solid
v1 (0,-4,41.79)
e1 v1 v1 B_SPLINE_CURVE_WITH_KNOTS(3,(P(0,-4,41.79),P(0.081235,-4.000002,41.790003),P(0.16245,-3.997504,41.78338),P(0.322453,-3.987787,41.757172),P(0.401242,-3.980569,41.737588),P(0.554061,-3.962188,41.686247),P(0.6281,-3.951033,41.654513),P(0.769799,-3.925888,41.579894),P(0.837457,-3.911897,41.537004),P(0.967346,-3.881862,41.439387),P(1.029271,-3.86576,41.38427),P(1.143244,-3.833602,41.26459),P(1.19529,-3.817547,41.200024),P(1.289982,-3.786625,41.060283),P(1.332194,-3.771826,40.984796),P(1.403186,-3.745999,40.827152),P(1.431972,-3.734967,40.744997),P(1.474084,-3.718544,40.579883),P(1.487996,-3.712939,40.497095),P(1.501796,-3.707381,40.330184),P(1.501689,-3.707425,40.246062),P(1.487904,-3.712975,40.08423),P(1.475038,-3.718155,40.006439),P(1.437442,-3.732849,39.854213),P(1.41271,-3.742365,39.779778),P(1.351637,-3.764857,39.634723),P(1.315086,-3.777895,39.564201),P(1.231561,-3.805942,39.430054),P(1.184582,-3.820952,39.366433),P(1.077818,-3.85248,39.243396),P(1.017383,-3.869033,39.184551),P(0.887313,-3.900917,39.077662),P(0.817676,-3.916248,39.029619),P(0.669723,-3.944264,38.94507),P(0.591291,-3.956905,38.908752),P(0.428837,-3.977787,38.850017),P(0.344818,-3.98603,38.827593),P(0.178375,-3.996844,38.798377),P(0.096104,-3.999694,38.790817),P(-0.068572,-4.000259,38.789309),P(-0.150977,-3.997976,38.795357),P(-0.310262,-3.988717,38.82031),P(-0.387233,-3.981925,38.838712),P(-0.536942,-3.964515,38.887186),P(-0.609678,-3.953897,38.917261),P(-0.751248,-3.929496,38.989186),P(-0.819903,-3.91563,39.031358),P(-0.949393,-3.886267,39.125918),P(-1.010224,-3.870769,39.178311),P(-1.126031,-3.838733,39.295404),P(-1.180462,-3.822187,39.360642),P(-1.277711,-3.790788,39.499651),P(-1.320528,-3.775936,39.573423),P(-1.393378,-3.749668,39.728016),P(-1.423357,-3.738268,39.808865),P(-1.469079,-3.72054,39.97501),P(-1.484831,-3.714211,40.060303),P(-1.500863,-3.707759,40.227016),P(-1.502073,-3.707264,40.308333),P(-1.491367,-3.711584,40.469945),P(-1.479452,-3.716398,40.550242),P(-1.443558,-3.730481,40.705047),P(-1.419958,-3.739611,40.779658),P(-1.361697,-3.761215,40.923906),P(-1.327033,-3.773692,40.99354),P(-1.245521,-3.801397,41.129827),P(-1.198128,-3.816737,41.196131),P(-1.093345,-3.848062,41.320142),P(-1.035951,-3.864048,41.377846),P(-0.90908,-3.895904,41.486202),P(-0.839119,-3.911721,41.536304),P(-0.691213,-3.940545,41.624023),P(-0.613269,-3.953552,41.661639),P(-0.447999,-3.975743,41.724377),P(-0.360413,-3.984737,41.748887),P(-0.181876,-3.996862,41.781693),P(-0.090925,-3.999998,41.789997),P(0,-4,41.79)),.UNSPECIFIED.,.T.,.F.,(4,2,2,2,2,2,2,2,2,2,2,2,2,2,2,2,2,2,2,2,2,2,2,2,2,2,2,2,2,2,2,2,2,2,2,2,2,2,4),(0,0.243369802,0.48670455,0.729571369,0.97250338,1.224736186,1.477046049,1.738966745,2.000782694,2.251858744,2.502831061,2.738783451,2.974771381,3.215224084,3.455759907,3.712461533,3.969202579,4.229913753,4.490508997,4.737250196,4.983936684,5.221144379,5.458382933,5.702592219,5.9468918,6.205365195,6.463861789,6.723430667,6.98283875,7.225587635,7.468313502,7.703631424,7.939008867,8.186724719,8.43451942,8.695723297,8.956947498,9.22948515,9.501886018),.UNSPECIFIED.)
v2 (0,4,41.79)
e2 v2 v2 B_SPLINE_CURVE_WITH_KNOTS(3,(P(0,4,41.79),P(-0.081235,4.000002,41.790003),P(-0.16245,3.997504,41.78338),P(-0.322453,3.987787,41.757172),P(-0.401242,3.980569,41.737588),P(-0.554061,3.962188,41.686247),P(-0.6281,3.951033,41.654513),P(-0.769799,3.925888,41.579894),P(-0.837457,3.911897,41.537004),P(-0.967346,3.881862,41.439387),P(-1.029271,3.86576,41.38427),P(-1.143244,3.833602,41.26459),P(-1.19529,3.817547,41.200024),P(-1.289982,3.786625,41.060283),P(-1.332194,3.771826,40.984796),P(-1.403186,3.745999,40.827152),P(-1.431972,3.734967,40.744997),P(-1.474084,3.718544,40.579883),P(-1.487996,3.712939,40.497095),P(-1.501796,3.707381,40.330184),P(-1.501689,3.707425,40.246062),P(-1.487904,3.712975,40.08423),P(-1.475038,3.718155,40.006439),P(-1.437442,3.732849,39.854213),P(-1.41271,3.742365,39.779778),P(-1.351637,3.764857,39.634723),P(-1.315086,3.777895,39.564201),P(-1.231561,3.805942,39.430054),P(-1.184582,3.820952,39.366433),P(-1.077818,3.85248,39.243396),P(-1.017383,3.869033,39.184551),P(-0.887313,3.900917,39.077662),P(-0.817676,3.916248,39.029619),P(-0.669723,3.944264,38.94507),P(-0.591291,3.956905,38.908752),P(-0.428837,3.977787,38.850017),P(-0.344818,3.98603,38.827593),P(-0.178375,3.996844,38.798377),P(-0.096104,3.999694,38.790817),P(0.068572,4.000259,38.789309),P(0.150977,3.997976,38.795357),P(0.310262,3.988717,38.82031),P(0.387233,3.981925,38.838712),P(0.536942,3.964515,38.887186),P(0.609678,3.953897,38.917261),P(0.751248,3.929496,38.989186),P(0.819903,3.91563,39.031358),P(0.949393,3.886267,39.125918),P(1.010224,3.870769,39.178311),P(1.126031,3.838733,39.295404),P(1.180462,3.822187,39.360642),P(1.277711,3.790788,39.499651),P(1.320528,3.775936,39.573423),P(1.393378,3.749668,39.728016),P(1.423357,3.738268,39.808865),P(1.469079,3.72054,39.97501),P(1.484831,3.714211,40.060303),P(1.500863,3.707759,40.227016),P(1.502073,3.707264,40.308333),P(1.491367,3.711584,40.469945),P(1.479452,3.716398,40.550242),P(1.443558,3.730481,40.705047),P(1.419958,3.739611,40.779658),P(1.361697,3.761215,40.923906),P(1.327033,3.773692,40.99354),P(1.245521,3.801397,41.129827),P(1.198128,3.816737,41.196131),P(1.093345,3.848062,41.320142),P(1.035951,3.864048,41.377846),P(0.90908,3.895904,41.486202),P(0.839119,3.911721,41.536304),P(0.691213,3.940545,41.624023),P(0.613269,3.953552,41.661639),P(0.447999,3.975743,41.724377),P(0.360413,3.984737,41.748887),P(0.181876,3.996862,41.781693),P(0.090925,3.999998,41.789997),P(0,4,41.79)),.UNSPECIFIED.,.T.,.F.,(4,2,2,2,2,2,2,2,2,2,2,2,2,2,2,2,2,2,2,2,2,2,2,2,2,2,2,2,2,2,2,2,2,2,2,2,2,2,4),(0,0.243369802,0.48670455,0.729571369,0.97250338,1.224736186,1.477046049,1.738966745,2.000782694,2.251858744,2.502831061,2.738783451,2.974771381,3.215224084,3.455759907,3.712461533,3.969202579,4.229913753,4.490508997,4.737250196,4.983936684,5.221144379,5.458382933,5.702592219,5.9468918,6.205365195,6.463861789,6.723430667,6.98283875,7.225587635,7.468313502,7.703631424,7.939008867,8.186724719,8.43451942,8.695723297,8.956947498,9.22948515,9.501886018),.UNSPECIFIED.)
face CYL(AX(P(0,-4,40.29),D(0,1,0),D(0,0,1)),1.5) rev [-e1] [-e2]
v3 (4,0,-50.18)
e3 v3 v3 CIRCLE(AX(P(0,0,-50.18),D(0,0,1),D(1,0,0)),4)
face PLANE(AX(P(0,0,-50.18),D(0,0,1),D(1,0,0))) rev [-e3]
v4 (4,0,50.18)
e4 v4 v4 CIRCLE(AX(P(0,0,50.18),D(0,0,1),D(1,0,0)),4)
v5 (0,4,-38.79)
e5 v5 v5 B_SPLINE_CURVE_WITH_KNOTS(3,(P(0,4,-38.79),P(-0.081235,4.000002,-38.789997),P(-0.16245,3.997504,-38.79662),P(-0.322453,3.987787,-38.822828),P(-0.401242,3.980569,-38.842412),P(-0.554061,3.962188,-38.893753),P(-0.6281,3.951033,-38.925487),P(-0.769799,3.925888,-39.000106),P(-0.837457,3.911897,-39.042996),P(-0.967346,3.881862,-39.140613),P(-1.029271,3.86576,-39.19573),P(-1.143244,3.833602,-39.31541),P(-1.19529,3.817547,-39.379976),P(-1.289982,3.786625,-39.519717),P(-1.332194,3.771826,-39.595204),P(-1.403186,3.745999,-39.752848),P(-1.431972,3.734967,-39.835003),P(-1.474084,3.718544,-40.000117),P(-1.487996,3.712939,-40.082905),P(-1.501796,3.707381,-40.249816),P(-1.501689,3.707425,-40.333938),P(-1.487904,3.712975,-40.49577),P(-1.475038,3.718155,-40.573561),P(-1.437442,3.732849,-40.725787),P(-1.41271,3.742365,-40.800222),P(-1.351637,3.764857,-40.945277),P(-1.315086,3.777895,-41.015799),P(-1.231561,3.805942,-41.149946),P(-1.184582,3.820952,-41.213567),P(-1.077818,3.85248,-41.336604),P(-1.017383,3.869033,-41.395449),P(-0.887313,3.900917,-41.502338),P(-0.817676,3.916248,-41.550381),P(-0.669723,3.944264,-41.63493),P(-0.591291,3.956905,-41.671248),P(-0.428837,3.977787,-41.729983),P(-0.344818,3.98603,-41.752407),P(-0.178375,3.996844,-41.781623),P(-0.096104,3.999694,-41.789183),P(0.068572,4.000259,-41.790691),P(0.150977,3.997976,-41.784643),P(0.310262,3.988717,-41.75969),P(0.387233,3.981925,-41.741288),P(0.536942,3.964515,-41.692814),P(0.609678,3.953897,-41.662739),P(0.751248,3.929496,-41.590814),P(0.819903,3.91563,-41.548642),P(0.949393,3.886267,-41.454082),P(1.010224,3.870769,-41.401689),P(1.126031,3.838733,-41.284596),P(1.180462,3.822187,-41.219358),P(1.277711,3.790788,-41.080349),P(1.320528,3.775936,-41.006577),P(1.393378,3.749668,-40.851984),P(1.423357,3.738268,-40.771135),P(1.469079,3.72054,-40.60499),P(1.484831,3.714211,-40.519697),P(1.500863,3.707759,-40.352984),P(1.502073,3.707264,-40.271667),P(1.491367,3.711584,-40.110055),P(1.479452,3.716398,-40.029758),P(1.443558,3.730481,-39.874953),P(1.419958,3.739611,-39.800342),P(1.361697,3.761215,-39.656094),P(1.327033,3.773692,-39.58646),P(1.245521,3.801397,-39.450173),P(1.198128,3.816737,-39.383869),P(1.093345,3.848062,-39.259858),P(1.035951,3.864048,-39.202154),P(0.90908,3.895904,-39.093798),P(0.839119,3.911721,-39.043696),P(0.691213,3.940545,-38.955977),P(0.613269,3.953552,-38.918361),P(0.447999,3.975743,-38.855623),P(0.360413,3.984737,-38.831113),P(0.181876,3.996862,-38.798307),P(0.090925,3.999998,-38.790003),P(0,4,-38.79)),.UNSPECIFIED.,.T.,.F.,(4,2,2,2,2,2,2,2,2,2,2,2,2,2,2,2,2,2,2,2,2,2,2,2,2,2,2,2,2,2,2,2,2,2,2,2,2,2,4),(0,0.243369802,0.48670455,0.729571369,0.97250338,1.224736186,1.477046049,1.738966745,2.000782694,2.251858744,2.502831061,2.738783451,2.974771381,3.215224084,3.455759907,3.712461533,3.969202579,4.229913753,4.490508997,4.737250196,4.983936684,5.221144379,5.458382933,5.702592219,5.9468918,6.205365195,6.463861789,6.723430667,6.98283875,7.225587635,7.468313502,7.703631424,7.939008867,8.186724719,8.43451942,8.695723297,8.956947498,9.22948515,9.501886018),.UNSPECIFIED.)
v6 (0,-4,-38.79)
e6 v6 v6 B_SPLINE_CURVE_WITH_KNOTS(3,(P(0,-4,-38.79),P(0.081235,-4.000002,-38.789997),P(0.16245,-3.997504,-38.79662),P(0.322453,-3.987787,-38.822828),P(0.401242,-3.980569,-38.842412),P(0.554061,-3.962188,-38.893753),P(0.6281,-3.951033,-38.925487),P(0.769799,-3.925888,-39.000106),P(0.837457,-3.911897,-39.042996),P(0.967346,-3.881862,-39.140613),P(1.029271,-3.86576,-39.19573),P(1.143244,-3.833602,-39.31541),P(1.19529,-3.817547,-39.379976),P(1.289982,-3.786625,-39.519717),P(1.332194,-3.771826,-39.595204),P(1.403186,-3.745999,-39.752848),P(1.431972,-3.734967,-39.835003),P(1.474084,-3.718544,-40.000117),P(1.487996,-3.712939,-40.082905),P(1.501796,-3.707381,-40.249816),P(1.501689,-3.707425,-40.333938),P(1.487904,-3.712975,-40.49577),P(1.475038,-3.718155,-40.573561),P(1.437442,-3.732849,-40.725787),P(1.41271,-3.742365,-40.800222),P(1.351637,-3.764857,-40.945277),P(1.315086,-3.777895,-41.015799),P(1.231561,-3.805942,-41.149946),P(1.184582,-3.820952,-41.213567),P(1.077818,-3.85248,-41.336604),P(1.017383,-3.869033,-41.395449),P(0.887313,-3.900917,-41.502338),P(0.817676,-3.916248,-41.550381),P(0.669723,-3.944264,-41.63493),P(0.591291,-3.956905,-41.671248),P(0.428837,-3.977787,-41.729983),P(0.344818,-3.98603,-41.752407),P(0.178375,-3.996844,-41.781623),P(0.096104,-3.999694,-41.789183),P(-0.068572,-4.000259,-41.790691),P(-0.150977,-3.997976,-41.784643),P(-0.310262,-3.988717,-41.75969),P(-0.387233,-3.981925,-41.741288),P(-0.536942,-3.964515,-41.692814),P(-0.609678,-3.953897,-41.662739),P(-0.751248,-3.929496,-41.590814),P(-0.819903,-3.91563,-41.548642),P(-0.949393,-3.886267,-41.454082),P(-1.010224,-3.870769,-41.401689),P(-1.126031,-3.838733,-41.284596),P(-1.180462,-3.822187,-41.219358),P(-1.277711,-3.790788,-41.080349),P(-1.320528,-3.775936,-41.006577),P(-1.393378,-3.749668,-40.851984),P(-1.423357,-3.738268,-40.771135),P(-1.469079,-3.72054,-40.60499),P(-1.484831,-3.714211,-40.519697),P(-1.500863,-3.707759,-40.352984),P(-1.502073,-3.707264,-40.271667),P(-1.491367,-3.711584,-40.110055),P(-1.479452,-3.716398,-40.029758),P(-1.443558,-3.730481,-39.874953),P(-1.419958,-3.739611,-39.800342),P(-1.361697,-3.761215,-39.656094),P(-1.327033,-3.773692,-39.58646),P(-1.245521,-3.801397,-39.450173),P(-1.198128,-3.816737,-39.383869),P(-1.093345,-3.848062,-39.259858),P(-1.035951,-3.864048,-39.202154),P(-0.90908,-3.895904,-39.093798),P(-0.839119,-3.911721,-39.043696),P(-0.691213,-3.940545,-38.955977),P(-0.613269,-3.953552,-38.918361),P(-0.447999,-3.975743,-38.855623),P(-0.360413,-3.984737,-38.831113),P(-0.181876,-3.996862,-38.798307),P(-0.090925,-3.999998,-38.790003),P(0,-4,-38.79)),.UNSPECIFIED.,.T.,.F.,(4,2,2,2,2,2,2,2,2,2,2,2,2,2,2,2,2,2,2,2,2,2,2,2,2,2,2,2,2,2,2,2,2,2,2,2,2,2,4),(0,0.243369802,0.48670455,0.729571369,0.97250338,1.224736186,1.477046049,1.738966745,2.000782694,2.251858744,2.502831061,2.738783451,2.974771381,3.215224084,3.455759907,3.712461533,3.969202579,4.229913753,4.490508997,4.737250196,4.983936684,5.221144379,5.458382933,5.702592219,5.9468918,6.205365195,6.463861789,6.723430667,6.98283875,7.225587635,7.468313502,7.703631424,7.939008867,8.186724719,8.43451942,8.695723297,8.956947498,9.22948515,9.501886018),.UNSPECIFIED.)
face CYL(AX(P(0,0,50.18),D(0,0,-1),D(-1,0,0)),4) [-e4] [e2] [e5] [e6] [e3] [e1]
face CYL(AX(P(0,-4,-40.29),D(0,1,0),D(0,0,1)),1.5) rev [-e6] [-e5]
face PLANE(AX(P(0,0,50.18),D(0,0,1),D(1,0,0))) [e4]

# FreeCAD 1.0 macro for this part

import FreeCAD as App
import Part
import Sketcher

doc = App.newDocument("Part")
body = doc.addObject("PartDesign::Body", "Body")

# Sketch on XY plane
sketch1 = doc.addObject("Sketcher::SketchObject", "Sketch")
body.addObject(sketch1)
sketch1.AttachmentSupport = (doc.XY_Plane, [""])
sketch1.MapMode = "FlatFace"
sketch1.addGeometry(Part.Circle(App.Vector(0, 0, 0), App.Vector(0, 0, 1), 4), False)
sketch1.addConstraint([
    Sketcher.Constraint("Coincident", 0, 3, -1, 1),
    Sketcher.Constraint("Diameter", 0, 8.0),
])
pad1 = doc.addObject("PartDesign::Pad", "Pad")
body.addObject(pad1)
pad1.Profile = sketch1
pad1.Length = 100.36
pad1.Midplane = True

# Sketch on XZ plane
sketch2 = doc.addObject("Sketcher::SketchObject", "Sketch001")
body.addObject(sketch2)
sketch2.AttachmentSupport = (doc.XZ_Plane, [""])
sketch2.MapMode = "FlatFace"
sketch2.addGeometry([
    Part.Circle(App.Vector(0, -40.3, 0), App.Vector(0, 0, 1), 1.5),
    Part.Circle(App.Vector(0, 40.3, 0), App.Vector(0, 0, 1), 1.5),
], False)
sketch2.addConstraint([
    Sketcher.Constraint("Equal", 0, 1),
    Sketcher.Constraint("Symmetric", 0, 3, 1, 3, -1, 1),
    Sketcher.Constraint("PointOnObject", 0, 3, -2),
    Sketcher.Constraint("Diameter", 0, 3.0),
    Sketcher.Constraint("DistanceY", 0, 3, -1, 1, 40.29),
])
pocket1 = doc.addObject("PartDesign::Pocket", "Pocket")
body.addObject(pocket1)
pocket1.Profile = sketch2
pocket1.Type = "ThroughAll"
pocket1.Midplane = True

doc.recompute()
